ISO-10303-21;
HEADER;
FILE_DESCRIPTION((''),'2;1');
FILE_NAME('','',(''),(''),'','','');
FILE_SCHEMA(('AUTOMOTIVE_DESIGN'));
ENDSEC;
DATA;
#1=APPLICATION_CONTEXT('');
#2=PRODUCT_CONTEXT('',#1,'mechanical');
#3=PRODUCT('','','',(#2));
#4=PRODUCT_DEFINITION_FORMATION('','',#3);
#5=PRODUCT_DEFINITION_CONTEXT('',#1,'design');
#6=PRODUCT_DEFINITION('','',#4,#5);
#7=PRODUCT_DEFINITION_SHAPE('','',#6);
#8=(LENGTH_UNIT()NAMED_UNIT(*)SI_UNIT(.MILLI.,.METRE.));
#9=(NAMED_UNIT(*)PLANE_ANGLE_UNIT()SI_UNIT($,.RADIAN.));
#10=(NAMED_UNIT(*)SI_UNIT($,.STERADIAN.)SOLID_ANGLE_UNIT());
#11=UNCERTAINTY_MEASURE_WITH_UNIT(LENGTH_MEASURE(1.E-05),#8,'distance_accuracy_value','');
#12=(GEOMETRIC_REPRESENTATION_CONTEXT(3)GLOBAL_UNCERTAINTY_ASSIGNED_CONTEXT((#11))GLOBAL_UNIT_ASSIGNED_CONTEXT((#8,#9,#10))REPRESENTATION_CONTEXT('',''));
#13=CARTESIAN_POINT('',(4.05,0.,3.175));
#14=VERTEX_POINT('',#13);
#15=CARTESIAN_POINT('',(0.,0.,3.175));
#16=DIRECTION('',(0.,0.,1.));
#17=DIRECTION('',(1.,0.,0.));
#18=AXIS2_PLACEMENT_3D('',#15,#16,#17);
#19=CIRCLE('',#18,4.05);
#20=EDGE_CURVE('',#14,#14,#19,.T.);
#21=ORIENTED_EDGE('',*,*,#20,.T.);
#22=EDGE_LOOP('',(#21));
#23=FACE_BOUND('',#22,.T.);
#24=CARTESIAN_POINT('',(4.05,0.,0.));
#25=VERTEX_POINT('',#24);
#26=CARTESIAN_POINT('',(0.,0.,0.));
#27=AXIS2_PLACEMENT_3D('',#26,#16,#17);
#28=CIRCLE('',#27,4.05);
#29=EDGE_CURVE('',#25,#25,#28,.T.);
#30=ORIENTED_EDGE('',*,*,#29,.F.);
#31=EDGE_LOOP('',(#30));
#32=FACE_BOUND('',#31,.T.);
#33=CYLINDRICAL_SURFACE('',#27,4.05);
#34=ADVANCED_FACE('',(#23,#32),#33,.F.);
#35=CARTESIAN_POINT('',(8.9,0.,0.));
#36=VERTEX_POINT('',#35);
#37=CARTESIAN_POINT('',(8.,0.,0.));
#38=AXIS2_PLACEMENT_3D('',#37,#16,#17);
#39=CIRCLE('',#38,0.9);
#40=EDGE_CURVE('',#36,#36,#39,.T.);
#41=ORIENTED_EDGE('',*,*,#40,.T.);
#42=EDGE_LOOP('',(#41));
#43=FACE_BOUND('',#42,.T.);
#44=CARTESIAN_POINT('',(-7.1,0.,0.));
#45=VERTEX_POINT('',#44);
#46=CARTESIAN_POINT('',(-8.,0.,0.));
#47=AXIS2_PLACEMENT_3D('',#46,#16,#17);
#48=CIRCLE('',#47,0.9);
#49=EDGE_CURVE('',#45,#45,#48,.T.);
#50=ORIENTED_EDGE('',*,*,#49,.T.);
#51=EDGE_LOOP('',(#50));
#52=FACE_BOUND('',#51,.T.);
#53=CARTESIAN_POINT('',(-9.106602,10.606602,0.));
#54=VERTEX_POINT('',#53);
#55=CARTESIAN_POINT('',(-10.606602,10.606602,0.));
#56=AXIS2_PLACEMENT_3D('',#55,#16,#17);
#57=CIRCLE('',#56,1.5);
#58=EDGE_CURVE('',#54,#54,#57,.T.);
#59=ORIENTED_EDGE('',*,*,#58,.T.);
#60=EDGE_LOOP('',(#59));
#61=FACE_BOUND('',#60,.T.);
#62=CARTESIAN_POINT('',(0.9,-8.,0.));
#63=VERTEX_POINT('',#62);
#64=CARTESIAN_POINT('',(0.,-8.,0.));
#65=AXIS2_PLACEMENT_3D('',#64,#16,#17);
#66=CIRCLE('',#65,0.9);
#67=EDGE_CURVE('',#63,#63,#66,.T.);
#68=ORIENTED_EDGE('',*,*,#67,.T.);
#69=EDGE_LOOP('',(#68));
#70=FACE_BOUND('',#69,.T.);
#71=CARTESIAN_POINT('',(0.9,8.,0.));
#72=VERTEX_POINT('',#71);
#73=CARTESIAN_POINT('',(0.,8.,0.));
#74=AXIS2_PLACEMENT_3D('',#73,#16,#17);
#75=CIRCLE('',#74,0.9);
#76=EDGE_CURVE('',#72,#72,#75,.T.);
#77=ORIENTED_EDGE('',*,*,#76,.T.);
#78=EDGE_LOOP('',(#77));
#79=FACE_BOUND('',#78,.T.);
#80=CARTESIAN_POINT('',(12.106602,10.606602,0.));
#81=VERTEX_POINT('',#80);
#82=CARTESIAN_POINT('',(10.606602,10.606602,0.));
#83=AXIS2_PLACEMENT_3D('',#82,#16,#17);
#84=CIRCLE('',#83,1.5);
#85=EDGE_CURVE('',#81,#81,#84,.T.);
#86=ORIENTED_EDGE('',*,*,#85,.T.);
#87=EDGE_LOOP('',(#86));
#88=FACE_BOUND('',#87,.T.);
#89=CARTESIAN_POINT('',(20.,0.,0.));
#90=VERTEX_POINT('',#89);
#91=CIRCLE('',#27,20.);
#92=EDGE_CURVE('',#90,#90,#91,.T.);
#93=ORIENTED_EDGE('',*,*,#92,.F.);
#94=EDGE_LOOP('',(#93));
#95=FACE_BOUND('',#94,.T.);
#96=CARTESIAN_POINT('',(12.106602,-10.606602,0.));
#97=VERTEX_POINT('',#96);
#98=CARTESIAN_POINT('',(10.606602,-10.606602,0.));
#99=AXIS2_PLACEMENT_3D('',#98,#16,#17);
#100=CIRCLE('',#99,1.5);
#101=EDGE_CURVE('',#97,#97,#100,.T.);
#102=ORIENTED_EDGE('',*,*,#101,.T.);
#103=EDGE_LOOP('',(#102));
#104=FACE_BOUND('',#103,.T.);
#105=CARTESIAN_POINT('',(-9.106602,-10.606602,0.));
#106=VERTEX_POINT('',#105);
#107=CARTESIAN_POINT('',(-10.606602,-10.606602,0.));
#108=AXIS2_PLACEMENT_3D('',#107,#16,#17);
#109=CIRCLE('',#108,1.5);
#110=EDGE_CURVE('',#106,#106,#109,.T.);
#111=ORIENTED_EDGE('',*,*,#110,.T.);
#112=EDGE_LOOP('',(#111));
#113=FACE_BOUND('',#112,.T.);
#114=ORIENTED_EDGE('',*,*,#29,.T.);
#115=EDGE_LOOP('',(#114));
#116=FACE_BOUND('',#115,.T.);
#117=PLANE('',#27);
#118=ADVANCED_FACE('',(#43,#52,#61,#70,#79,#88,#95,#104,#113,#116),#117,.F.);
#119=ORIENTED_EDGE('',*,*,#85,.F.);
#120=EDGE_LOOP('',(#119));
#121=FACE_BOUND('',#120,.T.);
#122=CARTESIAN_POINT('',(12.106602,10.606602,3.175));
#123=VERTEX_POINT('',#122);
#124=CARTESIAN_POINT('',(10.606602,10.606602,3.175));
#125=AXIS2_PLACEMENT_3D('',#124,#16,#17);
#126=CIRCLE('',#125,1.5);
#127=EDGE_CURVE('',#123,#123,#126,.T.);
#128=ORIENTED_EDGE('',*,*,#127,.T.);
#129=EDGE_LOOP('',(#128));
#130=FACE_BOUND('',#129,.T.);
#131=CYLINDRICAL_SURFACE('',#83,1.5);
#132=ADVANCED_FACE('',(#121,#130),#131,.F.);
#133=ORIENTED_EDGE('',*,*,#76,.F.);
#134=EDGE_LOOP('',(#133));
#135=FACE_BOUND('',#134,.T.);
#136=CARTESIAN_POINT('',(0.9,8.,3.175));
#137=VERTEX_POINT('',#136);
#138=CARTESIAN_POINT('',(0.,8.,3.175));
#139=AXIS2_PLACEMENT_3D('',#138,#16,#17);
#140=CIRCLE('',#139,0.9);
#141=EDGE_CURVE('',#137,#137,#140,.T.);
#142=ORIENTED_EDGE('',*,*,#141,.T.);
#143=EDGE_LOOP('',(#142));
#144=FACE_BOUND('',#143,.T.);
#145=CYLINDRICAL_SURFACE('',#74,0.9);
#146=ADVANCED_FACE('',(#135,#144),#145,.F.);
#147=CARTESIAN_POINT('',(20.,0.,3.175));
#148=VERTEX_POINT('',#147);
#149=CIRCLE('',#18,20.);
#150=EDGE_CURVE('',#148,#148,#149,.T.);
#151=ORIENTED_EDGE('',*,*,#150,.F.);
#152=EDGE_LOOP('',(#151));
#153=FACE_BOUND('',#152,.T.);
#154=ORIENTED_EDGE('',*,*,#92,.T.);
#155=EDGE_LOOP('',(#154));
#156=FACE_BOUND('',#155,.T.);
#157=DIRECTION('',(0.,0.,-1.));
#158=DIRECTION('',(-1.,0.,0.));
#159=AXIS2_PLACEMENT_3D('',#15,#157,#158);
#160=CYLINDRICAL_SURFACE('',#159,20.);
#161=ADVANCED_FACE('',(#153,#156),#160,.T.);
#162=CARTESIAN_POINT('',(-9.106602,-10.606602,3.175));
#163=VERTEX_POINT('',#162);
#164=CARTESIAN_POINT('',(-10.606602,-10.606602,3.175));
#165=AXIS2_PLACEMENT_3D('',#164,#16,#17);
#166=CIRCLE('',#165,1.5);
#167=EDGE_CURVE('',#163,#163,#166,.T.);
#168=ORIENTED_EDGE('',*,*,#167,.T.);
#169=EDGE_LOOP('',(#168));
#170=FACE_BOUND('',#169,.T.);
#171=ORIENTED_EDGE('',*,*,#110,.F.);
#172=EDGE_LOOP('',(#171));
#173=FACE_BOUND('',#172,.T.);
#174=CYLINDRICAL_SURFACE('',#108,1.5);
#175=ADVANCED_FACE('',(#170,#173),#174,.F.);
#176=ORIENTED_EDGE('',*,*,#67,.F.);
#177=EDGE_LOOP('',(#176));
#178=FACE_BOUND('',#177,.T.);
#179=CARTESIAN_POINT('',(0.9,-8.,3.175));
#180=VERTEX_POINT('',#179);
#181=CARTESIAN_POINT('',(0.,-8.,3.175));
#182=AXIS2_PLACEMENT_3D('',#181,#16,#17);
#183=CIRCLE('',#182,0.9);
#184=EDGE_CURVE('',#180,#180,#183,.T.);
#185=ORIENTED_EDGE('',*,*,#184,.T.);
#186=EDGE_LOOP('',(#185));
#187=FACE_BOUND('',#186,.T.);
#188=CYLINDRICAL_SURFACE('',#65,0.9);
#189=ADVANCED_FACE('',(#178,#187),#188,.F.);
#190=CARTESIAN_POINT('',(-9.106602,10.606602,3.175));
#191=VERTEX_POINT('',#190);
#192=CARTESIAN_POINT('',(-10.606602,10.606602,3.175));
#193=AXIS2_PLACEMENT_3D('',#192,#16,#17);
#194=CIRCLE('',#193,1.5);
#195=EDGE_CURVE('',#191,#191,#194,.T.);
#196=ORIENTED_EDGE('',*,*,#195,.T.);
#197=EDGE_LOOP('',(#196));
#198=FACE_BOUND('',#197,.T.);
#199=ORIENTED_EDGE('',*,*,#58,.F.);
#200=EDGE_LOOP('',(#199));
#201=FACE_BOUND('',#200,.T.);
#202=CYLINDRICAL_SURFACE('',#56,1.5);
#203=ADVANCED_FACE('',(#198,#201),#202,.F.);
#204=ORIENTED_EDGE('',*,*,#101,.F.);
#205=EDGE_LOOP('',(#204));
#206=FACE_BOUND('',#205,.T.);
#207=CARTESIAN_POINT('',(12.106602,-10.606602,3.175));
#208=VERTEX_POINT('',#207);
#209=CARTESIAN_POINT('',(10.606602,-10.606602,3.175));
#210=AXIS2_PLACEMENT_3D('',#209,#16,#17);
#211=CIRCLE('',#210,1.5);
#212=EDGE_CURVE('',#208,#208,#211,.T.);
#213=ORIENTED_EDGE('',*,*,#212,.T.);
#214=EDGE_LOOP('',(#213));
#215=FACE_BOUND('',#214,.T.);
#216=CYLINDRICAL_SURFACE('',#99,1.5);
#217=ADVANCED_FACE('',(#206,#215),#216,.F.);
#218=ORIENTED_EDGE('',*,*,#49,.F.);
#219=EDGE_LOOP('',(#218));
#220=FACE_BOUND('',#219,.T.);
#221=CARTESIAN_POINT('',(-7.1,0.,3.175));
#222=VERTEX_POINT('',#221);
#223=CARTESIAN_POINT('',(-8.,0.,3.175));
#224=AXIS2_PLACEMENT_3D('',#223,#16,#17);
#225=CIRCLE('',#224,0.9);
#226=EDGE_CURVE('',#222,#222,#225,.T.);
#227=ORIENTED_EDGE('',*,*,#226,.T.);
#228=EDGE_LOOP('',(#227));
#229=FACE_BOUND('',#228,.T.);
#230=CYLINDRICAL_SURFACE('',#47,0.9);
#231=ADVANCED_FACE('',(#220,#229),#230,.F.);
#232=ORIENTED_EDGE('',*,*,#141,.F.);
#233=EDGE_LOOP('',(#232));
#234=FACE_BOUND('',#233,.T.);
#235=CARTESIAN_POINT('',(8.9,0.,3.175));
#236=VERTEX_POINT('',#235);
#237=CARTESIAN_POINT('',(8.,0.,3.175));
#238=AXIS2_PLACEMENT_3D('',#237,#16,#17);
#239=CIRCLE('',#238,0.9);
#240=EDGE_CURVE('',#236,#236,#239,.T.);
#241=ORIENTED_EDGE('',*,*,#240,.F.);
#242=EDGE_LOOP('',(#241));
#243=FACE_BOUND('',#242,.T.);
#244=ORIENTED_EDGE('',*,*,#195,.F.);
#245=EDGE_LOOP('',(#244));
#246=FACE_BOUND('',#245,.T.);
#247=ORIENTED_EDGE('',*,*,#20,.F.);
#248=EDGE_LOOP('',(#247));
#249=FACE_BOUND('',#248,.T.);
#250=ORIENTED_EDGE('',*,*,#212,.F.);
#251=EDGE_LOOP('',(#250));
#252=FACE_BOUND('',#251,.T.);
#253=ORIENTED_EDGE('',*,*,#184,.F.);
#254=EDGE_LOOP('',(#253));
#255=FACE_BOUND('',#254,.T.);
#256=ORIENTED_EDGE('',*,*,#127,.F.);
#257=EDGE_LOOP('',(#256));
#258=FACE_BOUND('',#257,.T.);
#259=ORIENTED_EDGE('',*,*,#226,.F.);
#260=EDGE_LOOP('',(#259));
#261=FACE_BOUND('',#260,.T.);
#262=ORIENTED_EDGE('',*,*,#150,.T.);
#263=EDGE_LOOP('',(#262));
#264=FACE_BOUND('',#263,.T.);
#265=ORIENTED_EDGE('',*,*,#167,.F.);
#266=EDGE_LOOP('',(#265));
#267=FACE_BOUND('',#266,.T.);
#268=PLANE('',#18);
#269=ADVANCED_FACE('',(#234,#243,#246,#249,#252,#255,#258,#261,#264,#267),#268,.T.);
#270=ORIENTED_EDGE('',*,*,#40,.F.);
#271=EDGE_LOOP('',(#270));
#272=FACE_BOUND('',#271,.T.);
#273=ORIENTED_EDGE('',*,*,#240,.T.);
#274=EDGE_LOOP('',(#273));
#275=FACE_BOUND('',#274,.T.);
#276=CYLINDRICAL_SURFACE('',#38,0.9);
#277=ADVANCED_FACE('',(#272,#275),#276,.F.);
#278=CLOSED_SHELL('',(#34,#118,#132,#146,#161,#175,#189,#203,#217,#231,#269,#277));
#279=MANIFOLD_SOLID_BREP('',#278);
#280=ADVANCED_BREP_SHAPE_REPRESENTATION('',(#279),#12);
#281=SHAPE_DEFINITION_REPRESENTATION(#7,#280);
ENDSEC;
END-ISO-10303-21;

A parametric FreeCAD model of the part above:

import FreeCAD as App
import Part
import Sketcher

V = App.Vector
Q = App.Units.Quantity

doc = App.newDocument("Part")
body = doc.addObject("PartDesign::Body", "Body")

# Sketch on XY plane
sketch1 = body.newObject("Sketcher::SketchObject", "Sketch")
sketch1.AttachmentSupport = (doc.getObject("XY_Plane"), [""])
sketch1.MapMode = "FlatFace"
sketch1.addGeometry(Part.Circle(V(0, 0, 0), V(0, 0, 1), 20), False)
sketch1.addConstraint(Sketcher.Constraint("Coincident", 0, 3, -1, 1))
sketch1.addConstraint(Sketcher.Constraint("Diameter", 0, Q("40 mm")))
pad1 = body.newObject("PartDesign::Pad", "Pad")
pad1.Profile = sketch1
pad1.Length = 3.175

# Sketch on XY plane
sketch2 = body.newObject("Sketcher::SketchObject", "Sketch001")
sketch2.AttachmentSupport = (doc.getObject("XY_Plane"), [""])
sketch2.MapMode = "FlatFace"
sketch2.AttachmentOffset = App.Placement(V(0, 0, 3.175), App.Rotation())
sketch2.addGeometry(Part.Circle(V(0, 0, 0), V(0, 0, 1), 4), False)
sketch2.addGeometry(Part.Circle(V(0, 8, 0), V(0, 0, 1), 0.9), False)
sketch2.addGeometry(Part.Circle(V(8, 0, 0), V(0, 0, 1), 0.9), False)
sketch2.addGeometry(Part.Circle(V(0, -8, 0), V(0, 0, 1), 0.9), False)
sketch2.addGeometry(Part.Circle(V(-8, 0, 0), V(0, 0, 1), 0.9), False)
sketch2.addConstraint(Sketcher.Constraint("Coincident", 0, 3, -1, 1))
sketch2.addConstraint(Sketcher.Constraint("Equal", 1, 2))
sketch2.addConstraint(Sketcher.Constraint("Equal", 2, 3))
sketch2.addConstraint(Sketcher.Constraint("Equal", 3, 4))
sketch2.addConstraint(Sketcher.Constraint("Symmetric", 1, 3, 3, 3, -1, 1))
sketch2.addConstraint(Sketcher.Constraint("Symmetric", 2, 3, 4, 3, -1, 1))
sketch2.addConstraint(Sketcher.Constraint("PointOnObject", 1, 3, -2))
sketch2.addConstraint(Sketcher.Constraint("PointOnObject", 2, 3, -1))
sketch2.addConstraint(Sketcher.Constraint("Diameter", 0, Q("8.1 mm")))
sketch2.addConstraint(Sketcher.Constraint("Diameter", 1, Q("1.8 mm")))
sketch2.addConstraint(Sketcher.Constraint("DistanceY", -1, 1, 1, 3, Q("8 mm")))
sketch2.addConstraint(Sketcher.Constraint("DistanceX", -1, 1, 2, 3, Q("8 mm")))
pocket1 = body.newObject("PartDesign::Pocket", "Pocket")
pocket1.Profile = sketch2
pocket1.Type = "ThroughAll"

# Sketch on XY plane
sketch3 = body.newObject("Sketcher::SketchObject", "Sketch002")
sketch3.AttachmentSupport = (doc.getObject("XY_Plane"), [""])
sketch3.MapMode = "FlatFace"
sketch3.AttachmentOffset = App.Placement(V(0, 0, 3.175), App.Rotation())
sketch3.addGeometry(Part.Circle(V(10.6, 10.6, 0), V(0, 0, 1), 1.5), False)
sketch3.addGeometry(Part.Circle(V(10.6, -10.6, 0), V(0, 0, 1), 1.5), False)
sketch3.addGeometry(Part.Circle(V(-10.6, -10.6, 0), V(0, 0, 1), 1.5), False)
sketch3.addGeometry(Part.Circle(V(-10.6, 10.6, 0), V(0, 0, 1), 1.5), False)
sketch3.addConstraint(Sketcher.Constraint("Equal", 0, 1))
sketch3.addConstraint(Sketcher.Constraint("Equal", 1, 2))
sketch3.addConstraint(Sketcher.Constraint("Equal", 2, 3))
sketch3.addConstraint(Sketcher.Constraint("Symmetric", 0, 3, 2, 3, -1, 1))
sketch3.addConstraint(Sketcher.Constraint("Symmetric", 1, 3, 3, 3, -1, 1))
sketch3.addConstraint(Sketcher.Constraint("Symmetric", 1, 3, 2, 3, -2))
sketch3.addConstraint(Sketcher.Constraint("Diameter", 0, Q("3 mm")))
sketch3.addConstraint(Sketcher.Constraint("DistanceX", -1, 1, 0, 3, Q("10.606602 mm")))
sketch3.addConstraint(Sketcher.Constraint("DistanceY", -1, 1, 0, 3, Q("10.606602 mm")))
pocket2 = body.newObject("PartDesign::Pocket", "Pocket001")
pocket2.Profile = sketch3
pocket2.Type = "ThroughAll"
pocket2.Midplane = True

doc.recompute()
